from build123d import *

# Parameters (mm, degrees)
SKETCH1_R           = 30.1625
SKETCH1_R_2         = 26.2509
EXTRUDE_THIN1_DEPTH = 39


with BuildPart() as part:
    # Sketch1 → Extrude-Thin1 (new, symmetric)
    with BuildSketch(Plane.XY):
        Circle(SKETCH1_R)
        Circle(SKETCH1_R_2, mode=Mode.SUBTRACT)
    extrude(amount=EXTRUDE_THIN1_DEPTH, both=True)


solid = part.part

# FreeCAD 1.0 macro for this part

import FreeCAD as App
import Part
import Sketcher
from FreeCAD import Vector
Q = App.Units.Quantity

doc = App.newDocument("Part")
body = doc.addObject("PartDesign::Body", "Body")

# Sketch on XY plane
sketch1 = body.newObject("Sketcher::SketchObject", "Sketch")
sketch1.AttachmentSupport = (doc.getObject("XY_Plane"), [""])
sketch1.MapMode = "FlatFace"
sketch1.addGeometry([
    Part.Circle(Vector(0, 0, 0), Vector(0, 0, 1), 30.1625),
    Part.Circle(Vector(0, 0, 0), Vector(0, 0, 1), 26.2509),
], False)
sketch1.addConstraint([
    Sketcher.Constraint("Coincident", 0, 3, -1, 1),
    Sketcher.Constraint("Coincident", 1, 3, -1, 1),
    Sketcher.Constraint("Diameter", 0, Q("2.375 in")),
    Sketcher.Constraint("Diameter", 1, Q("2.067 in")),
])
pad1 = body.newObject("PartDesign::Pad", "Pad")
pad1.Profile = sketch1
pad1.Length = 78
pad1.Midplane = True

doc.recompute()
